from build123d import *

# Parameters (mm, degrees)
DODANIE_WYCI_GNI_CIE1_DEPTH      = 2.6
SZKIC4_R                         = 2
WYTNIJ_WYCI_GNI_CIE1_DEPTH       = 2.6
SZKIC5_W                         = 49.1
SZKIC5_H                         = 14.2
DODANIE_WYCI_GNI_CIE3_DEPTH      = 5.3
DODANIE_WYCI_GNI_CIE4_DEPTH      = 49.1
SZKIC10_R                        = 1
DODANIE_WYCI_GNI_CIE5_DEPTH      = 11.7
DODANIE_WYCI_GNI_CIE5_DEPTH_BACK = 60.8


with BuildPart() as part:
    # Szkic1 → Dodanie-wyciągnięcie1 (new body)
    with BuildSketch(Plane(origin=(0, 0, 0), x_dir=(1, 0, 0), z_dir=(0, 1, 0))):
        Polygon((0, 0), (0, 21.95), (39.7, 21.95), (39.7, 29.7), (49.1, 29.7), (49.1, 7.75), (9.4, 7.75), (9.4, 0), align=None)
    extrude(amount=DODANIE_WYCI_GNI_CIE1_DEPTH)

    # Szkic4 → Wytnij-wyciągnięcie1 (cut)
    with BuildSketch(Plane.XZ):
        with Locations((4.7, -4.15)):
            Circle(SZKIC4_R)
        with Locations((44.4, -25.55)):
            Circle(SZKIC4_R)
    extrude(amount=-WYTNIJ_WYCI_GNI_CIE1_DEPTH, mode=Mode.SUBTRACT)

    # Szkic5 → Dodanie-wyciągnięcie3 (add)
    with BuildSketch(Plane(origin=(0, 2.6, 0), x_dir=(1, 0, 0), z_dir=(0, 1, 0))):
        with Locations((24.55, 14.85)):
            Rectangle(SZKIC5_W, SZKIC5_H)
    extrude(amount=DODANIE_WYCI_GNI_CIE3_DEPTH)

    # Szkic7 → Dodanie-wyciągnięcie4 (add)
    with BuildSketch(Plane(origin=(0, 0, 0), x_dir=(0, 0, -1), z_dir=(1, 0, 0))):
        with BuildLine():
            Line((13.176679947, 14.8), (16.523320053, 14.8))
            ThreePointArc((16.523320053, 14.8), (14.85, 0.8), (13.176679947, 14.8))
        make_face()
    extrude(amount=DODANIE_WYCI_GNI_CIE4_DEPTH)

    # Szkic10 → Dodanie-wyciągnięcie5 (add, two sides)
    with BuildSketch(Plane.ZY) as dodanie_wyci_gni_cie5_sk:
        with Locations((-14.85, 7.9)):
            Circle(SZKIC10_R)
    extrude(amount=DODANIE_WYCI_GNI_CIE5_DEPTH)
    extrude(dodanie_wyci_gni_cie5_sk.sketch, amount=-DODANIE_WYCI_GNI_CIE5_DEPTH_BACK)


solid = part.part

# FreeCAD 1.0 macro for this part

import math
import FreeCAD as App
import Part
import Sketcher

V = App.Vector


def add_polygon(sketch, points):
    """Adds a closed chain of lines whose ends are joined by coincident constraints."""
    first, n = sketch.GeometryCount, len(points)
    for a, b in zip(points, points[1:] + points[:1]):
        sketch.addGeometry(Part.LineSegment(App.Vector(*a, 0), App.Vector(*b, 0)), False)
    for i in range(n):
        sketch.addConstraint(Sketcher.Constraint("Coincident", first + i, 2, first + (i + 1) % n, 1))

doc = App.newDocument("Part")
body = doc.addObject("PartDesign::Body", "Body")

# Sketch on XZ plane
sketch1 = body.newObject("Sketcher::SketchObject", "Sketch")
sketch1.AttachmentSupport = (doc.getObject("XZ_Plane"), [""])
sketch1.MapMode = "FlatFace"
add_polygon(sketch1, [(0, -21.95), (0, 0), (9.4, 0), (9.4, -7.75), (49.1, -7.75), (49.1, -29.7), (39.7, -29.7), (39.7, -21.95)])  # lines 0-7
sketch1.addConstraint([
    Sketcher.Constraint("Vertical", 0),
    Sketcher.Constraint("Horizontal", 1),
    Sketcher.Constraint("Vertical", 2),
    Sketcher.Constraint("Horizontal", 3),
    Sketcher.Constraint("Vertical", 4),
    Sketcher.Constraint("Horizontal", 5),
    Sketcher.Constraint("Vertical", 6),
    Sketcher.Constraint("Horizontal", 7),
    Sketcher.Constraint("Coincident", 0, 2, -1, 1),
    Sketcher.Constraint("Equal", 1, 5),
    Sketcher.Constraint("Equal", 0, 4),
    Sketcher.Constraint("DistanceX", 1, 1, 1, 2, 9.4),
    Sketcher.Constraint("DistanceX", 3, 1, 3, 2, 39.7),
    Sketcher.Constraint("DistanceY", 0, 1, 0, 2, 21.95),
    Sketcher.Constraint("DistanceY", 2, 2, 2, 1, 7.75),
])
pad1 = body.newObject("PartDesign::Pad", "Pad")
pad1.Profile = sketch1
pad1.Length = 2.6
pad1.Reversed = True

# Sketch on XZ plane
sketch2 = body.newObject("Sketcher::SketchObject", "Sketch001")
sketch2.AttachmentSupport = (doc.getObject("XZ_Plane"), [""])
sketch2.MapMode = "FlatFace"
sketch2.addGeometry([
    Part.Circle(V(4.7, -4.15, 0), V(0, 0, 1), 2),
    Part.Circle(V(44.4, -25.55, 0), V(0, 0, 1), 2),
], False)
sketch2.addConstraint([
    Sketcher.Constraint("Equal", 0, 1),
    Sketcher.Constraint("Diameter", 0, 4.0),
    Sketcher.Constraint("DistanceX", -1, 1, 0, 3, 4.7),
    Sketcher.Constraint("DistanceX", -1, 1, 1, 3, 44.4),
    Sketcher.Constraint("DistanceY", 1, 3, 0, 3, 21.4),
    Sketcher.Constraint("DistanceY", 0, 3, -1, 1, 4.15),
])
pocket1 = body.newObject("PartDesign::Pocket", "Pocket")
pocket1.Profile = sketch2
pocket1.Length = 2.6

# Sketch on XZ plane
sketch3 = body.newObject("Sketcher::SketchObject", "Sketch002")
sketch3.AttachmentSupport = (doc.getObject("XZ_Plane"), [""])
sketch3.MapMode = "FlatFace"
sketch3.AttachmentOffset = App.Placement(V(0, 0, -2.6), App.Rotation())
add_polygon(sketch3, [(0, -21.95), (0, -7.75), (49.1, -7.75), (49.1, -21.95)])  # lines 0-3
sketch3.addConstraint([
    Sketcher.Constraint("Vertical", 0),
    Sketcher.Constraint("Horizontal", 1),
    Sketcher.Constraint("Vertical", 2),
    Sketcher.Constraint("Horizontal", 3),
    Sketcher.Constraint("PointOnObject", 0, 2, -2),
    Sketcher.Constraint("DistanceX", 1, 1, 1, 2, 49.1),
    Sketcher.Constraint("DistanceY", 0, 1, 0, 2, 14.2),
    Sketcher.Constraint("DistanceY", 0, 2, -1, 1, 7.75),
])
pad2 = body.newObject("PartDesign::Pad", "Pad001")
pad2.Profile = sketch3
pad2.Length = 5.3
pad2.Reversed = True

# Sketch on YZ plane
sketch4 = body.newObject("Sketcher::SketchObject", "Sketch003")
sketch4.AttachmentSupport = (doc.getObject("YZ_Plane"), [""])
sketch4.MapMode = "FlatFace"
sketch4.addGeometry([
    Part.LineSegment(V(14.8, -16.52332, 0), V(14.8, -13.17668, 0)),
    Part.ArcOfCircle(Part.Circle(V(7.9, -14.85, 0), V(0, 0, 1), 7.1), math.radians(13.631644), math.radians(346.368356)),
], False)
sketch4.addConstraint([
    Sketcher.Constraint("Coincident", 0, 1, 1, 2),
    Sketcher.Constraint("Coincident", 1, 1, 0, 2),
    Sketcher.Constraint("Vertical", 0),
    Sketcher.Constraint("Radius", 1, 7.1),
    Sketcher.Constraint("DistanceX", -1, 1, 1, 3, 7.9),
    Sketcher.Constraint("DistanceX", -1, 1, 0, 1, 14.8),
    Sketcher.Constraint("DistanceY", 1, 3, -1, 1, 14.85),
])
pad3 = body.newObject("PartDesign::Pad", "Pad002")
pad3.Profile = sketch4
pad3.Length = 49.1

# Sketch on YZ plane
sketch5 = body.newObject("Sketcher::SketchObject", "Sketch004")
sketch5.AttachmentSupport = (doc.getObject("YZ_Plane"), [""])
sketch5.MapMode = "FlatFace"
sketch5.addGeometry(Part.Circle(V(7.9, -14.85, 0), V(0, 0, 1), 1), False)
sketch5.addConstraint([
    Sketcher.Constraint("Diameter", 0, 2.0),
    Sketcher.Constraint("DistanceX", -1, 1, 0, 3, 7.9),
    Sketcher.Constraint("DistanceY", 0, 3, -1, 1, 14.85),
])
pad4 = body.newObject("PartDesign::Pad", "Pad003")
pad4.Profile = sketch5
pad4.Type = "TwoLengths"
pad4.Length = 11.7
pad4.Length2 = 60.8
pad4.Reversed = True

doc.recompute()
